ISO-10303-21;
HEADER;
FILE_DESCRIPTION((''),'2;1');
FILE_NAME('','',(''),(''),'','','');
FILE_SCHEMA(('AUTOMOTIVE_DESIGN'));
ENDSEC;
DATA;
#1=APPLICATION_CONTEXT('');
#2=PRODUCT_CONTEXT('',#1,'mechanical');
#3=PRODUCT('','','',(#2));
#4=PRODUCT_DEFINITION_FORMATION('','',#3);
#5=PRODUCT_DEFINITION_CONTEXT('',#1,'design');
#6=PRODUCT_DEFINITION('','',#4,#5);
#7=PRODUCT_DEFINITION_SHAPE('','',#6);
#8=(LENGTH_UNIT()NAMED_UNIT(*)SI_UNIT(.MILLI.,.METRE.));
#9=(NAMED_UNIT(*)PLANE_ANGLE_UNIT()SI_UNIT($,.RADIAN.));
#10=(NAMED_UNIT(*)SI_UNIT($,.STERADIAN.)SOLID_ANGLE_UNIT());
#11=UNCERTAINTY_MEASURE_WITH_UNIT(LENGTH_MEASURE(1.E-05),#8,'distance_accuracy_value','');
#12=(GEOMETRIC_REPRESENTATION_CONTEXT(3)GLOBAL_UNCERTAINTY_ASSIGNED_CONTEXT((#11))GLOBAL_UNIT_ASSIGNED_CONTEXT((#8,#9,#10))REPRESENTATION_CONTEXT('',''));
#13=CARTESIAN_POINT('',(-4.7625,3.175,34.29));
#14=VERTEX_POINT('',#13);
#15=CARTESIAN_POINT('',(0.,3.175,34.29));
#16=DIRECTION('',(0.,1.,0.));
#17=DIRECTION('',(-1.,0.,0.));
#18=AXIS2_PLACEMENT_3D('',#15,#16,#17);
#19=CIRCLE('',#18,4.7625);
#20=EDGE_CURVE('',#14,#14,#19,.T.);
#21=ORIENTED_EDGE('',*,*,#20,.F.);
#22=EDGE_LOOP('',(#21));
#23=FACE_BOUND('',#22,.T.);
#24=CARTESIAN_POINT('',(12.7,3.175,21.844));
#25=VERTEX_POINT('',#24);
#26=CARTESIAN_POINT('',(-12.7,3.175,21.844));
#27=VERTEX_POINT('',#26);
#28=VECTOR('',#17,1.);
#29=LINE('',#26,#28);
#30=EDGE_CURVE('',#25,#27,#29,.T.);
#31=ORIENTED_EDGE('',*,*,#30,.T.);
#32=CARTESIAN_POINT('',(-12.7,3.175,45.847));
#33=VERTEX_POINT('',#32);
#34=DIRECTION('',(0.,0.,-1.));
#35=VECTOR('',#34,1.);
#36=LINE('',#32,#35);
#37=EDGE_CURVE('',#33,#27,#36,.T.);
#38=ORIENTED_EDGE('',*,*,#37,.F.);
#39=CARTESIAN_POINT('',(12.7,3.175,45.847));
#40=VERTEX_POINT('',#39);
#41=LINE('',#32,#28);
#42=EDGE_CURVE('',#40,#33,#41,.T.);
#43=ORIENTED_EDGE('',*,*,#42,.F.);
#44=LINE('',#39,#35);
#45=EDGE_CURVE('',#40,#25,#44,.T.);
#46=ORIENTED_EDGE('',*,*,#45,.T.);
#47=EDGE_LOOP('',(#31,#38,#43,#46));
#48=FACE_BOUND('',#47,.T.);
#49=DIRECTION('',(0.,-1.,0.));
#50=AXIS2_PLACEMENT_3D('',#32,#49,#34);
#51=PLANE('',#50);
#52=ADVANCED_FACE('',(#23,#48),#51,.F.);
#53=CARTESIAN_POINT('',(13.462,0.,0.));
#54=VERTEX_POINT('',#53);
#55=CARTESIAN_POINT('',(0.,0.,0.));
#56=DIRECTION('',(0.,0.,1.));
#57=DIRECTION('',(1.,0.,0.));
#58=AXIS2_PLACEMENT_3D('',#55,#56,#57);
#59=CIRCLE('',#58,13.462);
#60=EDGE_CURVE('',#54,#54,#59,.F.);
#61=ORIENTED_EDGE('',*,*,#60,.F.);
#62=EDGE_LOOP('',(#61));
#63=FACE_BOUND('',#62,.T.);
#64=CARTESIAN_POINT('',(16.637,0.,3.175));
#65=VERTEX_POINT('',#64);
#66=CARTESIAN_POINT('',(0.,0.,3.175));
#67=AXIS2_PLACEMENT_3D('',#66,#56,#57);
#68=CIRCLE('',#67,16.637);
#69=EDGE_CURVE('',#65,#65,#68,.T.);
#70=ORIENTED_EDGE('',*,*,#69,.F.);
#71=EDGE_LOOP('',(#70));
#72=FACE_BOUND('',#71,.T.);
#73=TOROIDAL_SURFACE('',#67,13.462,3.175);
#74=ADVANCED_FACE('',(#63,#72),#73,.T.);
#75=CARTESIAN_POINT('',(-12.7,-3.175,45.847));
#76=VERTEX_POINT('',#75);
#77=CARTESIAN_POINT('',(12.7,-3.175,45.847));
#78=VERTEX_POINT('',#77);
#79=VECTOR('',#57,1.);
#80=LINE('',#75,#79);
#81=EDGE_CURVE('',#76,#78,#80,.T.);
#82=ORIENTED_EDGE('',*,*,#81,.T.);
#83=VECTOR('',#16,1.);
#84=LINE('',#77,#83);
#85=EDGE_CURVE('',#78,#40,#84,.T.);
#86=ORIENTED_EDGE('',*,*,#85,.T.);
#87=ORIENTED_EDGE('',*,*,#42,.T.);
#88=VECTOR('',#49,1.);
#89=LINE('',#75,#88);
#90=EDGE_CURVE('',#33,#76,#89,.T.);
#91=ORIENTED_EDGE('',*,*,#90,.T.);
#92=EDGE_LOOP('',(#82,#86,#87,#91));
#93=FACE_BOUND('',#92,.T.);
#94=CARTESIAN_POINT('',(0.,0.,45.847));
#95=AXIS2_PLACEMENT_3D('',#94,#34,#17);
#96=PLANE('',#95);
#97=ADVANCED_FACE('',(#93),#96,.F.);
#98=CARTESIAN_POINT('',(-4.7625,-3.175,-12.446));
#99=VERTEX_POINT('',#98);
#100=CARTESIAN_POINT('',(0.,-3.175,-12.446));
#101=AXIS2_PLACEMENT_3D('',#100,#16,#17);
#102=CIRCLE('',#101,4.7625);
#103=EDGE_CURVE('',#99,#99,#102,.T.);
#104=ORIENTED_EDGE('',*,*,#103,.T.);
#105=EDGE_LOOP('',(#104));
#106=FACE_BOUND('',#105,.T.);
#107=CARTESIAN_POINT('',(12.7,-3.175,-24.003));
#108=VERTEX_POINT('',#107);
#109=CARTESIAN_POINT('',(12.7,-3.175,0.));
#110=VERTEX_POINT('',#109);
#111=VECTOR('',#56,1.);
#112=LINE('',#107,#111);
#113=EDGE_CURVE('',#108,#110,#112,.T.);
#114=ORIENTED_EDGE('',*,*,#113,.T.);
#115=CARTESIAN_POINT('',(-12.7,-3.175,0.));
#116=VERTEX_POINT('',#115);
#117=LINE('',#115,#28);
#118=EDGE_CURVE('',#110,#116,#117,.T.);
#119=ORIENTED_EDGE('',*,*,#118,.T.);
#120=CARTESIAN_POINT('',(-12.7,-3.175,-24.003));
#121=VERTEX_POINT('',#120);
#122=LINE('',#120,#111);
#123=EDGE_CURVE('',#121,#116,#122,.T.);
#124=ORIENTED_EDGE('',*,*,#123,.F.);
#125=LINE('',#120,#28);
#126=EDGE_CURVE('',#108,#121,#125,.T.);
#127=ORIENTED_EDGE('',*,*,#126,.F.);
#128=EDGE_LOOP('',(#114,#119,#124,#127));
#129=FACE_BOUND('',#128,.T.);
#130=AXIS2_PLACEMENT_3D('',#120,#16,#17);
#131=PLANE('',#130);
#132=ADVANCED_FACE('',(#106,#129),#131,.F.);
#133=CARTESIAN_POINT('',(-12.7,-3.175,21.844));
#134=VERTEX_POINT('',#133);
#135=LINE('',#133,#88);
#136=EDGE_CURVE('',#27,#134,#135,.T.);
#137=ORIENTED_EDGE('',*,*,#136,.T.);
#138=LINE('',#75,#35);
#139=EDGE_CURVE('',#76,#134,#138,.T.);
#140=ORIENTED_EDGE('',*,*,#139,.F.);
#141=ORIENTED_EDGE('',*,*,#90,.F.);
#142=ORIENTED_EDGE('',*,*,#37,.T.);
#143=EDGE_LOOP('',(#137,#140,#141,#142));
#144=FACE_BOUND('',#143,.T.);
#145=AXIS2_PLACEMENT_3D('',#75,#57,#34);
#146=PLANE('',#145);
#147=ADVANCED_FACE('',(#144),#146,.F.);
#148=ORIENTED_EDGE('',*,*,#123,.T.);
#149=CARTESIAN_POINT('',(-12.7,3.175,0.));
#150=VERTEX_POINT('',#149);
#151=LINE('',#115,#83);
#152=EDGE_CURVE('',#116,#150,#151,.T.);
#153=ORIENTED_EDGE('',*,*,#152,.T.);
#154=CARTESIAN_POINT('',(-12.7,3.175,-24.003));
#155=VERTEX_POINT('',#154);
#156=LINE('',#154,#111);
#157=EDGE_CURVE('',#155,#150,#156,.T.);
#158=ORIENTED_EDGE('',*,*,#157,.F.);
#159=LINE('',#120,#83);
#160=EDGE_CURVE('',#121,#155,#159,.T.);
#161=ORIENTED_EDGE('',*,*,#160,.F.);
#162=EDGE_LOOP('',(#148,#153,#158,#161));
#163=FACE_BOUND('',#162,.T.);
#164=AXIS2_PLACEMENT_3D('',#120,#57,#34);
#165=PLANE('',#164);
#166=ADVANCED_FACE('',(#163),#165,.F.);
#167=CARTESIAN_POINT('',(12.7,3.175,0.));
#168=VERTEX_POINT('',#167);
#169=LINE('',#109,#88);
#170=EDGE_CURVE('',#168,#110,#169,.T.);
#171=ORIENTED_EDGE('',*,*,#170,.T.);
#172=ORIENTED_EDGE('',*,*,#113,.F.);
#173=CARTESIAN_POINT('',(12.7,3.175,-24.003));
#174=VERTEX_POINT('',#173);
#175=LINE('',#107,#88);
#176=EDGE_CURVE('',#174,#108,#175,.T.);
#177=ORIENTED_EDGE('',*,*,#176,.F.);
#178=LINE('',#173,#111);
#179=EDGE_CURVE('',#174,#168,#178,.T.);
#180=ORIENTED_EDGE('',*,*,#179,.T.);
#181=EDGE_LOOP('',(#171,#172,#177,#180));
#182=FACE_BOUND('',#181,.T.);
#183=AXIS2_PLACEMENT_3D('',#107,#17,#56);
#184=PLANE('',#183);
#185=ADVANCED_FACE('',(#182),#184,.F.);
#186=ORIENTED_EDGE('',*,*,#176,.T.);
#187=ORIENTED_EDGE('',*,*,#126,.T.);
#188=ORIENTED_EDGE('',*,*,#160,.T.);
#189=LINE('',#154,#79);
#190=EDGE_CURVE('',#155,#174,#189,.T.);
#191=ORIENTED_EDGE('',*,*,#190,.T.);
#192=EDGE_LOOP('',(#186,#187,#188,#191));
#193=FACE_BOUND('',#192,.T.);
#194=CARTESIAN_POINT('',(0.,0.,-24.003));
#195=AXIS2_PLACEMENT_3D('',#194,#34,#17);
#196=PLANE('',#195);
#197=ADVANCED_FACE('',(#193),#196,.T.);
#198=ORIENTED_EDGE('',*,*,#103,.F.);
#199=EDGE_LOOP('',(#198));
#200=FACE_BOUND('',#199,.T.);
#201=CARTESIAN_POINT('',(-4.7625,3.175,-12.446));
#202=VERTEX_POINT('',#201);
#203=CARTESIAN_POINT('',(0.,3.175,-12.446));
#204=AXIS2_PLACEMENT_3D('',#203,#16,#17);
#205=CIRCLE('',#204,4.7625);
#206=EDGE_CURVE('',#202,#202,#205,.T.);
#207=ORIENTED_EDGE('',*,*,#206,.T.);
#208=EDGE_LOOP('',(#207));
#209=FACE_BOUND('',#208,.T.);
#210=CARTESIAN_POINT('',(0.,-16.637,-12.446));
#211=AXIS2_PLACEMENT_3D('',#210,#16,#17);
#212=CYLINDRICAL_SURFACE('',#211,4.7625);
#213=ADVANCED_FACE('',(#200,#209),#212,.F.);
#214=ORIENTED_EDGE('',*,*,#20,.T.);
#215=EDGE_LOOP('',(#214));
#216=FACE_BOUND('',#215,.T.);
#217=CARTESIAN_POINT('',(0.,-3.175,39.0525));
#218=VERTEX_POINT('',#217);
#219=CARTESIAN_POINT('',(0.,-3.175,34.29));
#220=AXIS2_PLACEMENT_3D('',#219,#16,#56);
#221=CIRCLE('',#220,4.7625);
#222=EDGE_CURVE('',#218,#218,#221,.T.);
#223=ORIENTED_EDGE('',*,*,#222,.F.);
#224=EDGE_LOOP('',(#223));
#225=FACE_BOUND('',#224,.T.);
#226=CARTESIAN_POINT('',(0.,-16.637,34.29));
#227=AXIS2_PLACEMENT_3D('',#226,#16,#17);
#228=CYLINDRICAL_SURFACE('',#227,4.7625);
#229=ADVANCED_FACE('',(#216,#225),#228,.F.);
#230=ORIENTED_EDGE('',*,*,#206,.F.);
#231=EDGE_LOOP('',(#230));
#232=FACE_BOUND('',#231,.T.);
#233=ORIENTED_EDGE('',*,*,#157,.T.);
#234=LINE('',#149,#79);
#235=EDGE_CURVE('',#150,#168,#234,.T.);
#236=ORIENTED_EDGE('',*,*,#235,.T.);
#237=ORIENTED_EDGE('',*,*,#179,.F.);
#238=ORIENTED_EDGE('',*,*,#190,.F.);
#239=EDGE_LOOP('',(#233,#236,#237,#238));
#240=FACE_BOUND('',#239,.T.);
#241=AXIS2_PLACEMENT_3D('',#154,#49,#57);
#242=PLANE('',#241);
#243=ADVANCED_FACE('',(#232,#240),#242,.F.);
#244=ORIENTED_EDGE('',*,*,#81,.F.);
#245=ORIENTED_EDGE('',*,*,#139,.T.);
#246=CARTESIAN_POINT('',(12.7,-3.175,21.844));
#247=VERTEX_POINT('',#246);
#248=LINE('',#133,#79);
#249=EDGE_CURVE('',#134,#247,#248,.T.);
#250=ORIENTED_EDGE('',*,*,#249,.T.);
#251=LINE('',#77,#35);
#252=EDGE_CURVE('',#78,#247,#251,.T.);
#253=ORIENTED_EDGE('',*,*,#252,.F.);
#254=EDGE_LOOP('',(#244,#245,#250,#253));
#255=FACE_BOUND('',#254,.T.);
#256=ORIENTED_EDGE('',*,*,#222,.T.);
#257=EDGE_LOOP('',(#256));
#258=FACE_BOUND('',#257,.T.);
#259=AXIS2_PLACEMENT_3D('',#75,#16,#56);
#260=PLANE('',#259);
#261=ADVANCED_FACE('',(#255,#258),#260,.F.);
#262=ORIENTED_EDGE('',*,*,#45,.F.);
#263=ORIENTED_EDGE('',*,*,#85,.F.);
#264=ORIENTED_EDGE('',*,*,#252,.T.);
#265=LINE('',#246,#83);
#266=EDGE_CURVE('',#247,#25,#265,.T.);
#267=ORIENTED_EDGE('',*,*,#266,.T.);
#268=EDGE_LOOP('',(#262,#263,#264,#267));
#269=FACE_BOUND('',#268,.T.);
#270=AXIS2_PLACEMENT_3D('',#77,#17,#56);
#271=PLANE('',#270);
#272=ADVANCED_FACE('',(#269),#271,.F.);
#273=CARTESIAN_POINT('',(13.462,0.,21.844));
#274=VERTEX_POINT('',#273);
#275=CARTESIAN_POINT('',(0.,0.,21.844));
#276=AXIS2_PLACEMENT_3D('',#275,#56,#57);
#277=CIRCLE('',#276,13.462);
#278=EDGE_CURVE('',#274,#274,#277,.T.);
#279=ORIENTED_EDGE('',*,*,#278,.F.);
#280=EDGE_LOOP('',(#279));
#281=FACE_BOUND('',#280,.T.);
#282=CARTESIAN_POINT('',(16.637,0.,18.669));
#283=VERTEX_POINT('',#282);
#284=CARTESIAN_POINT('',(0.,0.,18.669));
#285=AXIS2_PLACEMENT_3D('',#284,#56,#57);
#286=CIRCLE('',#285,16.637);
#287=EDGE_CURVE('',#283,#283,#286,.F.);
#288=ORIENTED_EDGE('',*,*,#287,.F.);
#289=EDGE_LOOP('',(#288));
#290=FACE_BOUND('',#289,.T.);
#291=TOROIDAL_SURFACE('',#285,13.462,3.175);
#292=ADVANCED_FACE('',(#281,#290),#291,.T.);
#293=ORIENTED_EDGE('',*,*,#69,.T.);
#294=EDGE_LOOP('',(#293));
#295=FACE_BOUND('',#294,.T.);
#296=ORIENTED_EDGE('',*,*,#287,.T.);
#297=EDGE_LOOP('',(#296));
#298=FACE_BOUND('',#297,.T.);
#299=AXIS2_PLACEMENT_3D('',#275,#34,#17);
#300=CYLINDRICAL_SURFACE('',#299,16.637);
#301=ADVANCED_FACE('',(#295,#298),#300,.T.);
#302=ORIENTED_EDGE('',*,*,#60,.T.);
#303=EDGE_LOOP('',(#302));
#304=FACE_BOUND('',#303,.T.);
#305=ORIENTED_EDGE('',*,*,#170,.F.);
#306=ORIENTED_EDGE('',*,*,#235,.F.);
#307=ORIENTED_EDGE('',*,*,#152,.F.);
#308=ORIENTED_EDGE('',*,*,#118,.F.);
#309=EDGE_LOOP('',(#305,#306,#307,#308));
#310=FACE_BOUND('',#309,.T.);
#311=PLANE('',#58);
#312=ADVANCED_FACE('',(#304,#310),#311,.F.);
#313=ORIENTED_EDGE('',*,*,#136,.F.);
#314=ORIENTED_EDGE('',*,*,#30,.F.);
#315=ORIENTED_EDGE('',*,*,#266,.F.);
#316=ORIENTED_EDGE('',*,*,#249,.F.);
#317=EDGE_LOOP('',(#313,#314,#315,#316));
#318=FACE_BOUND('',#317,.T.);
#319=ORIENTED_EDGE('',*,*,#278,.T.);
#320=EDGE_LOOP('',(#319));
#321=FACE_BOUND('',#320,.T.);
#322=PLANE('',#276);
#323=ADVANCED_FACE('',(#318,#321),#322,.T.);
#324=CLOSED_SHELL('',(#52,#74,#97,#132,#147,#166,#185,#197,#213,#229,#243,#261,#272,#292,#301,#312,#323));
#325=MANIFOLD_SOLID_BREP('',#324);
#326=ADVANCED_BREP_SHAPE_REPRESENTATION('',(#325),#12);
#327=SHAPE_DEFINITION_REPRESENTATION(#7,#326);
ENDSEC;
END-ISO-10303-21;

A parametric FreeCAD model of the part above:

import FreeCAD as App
import Part
import Sketcher
from FreeCAD import Vector
Q = App.Units.Quantity


def edges_at(feature, points):
    """Names of the edges that pass closest to the given points."""
    edges = feature.Shape.Edges
    near = lambda p: min(range(len(edges)), key=lambda i: edges[i].distToShape(Part.Vertex(*p))[0])
    return sorted({f"Edge{near(p) + 1}" for p in points})

doc = App.newDocument("Part")
body = doc.addObject("PartDesign::Body", "Body")

# Sketch on XY plane
sketch1 = body.newObject("Sketcher::SketchObject", "Sketch")
sketch1.AttachmentSupport = (doc.getObject("XY_Plane"), [""])
sketch1.MapMode = "FlatFace"
sketch1.addGeometry(Part.Circle(Vector(0, 0, 0), Vector(0, 0, 1), 17), False)
sketch1.addConstraint(Sketcher.Constraint("Coincident", 0, 3, -1, 1))
sketch1.addConstraint(Sketcher.Constraint("Diameter", 0, Q("1.31 in")))
pad1 = body.newObject("PartDesign::Pad", "Pad")
pad1.Profile = sketch1
pad1.Length = Q("0.86 in")

# Sketch on XY plane
sketch2 = body.newObject("Sketcher::SketchObject", "Sketch001")
sketch2.AttachmentSupport = (doc.getObject("XY_Plane"), [""])
sketch2.MapMode = "FlatFace"
sketch2.AttachmentOffset = App.Placement(Vector(0, 0, 0.86 * 25.4), App.Rotation())
sketch2.addGeometry(Part.LineSegment(Vector(-13, 3, 0), Vector(-13, -3, 0)), False)
sketch2.addGeometry(Part.LineSegment(Vector(-13, -3, 0), Vector(13, -3, 0)), False)
sketch2.addGeometry(Part.LineSegment(Vector(13, -3, 0), Vector(13, 3, 0)), False)
sketch2.addGeometry(Part.LineSegment(Vector(13, 3, 0), Vector(-13, 3, 0)), False)
sketch2.addConstraint(Sketcher.Constraint("Coincident", 0, 2, 1, 1))
sketch2.addConstraint(Sketcher.Constraint("Coincident", 1, 2, 2, 1))
sketch2.addConstraint(Sketcher.Constraint("Coincident", 2, 2, 3, 1))
sketch2.addConstraint(Sketcher.Constraint("Coincident", 3, 2, 0, 1))
sketch2.addConstraint(Sketcher.Constraint("Vertical", 0))
sketch2.addConstraint(Sketcher.Constraint("Horizontal", 1))
sketch2.addConstraint(Sketcher.Constraint("Vertical", 2))
sketch2.addConstraint(Sketcher.Constraint("Horizontal", 3))
sketch2.addConstraint(Sketcher.Constraint("Symmetric", 0, 2, 2, 2, -1, 1))
sketch2.addConstraint(Sketcher.Constraint("DistanceX", 1, 1, 1, 2, Q("1 in")))
sketch2.addConstraint(Sketcher.Constraint("DistanceY", 0, 2, 0, 1, Q("0.25 in")))
pad2 = body.newObject("PartDesign::Pad", "Pad001")
pad2.Profile = sketch2
pad2.Length = Q("0.945 in")

# Sketch on XY plane
sketch3 = body.newObject("Sketcher::SketchObject", "Sketch002")
sketch3.AttachmentSupport = (doc.getObject("XY_Plane"), [""])
sketch3.MapMode = "FlatFace"
sketch3.addGeometry(Part.LineSegment(Vector(13, 3, 0), Vector(13, -3, 0)), False)
sketch3.addGeometry(Part.LineSegment(Vector(13, -3, 0), Vector(-13, -3, 0)), False)
sketch3.addGeometry(Part.LineSegment(Vector(-13, -3, 0), Vector(-13, 3, 0)), False)
sketch3.addGeometry(Part.LineSegment(Vector(-13, 3, 0), Vector(13, 3, 0)), False)
sketch3.addConstraint(Sketcher.Constraint("Coincident", 0, 2, 1, 1))
sketch3.addConstraint(Sketcher.Constraint("Coincident", 1, 2, 2, 1))
sketch3.addConstraint(Sketcher.Constraint("Coincident", 2, 2, 3, 1))
sketch3.addConstraint(Sketcher.Constraint("Coincident", 3, 2, 0, 1))
sketch3.addConstraint(Sketcher.Constraint("Vertical", 0))
sketch3.addConstraint(Sketcher.Constraint("Horizontal", 1))
sketch3.addConstraint(Sketcher.Constraint("Vertical", 2))
sketch3.addConstraint(Sketcher.Constraint("Horizontal", 3))
sketch3.addConstraint(Sketcher.Constraint("Symmetric", 0, 2, 2, 2, -1, 1))
sketch3.addConstraint(Sketcher.Constraint("DistanceX", 1, 2, 1, 1, Q("1 in")))
sketch3.addConstraint(Sketcher.Constraint("DistanceY", 0, 2, 0, 1, Q("0.25 in")))
pad3 = body.newObject("PartDesign::Pad", "Pad002")
pad3.Profile = sketch3
pad3.Length = Q("0.945 in")
pad3.Reversed = True

# Sketch on XZ plane
sketch4 = body.newObject("Sketcher::SketchObject", "Sketch003")
sketch4.AttachmentSupport = (doc.getObject("XZ_Plane"), [""])
sketch4.MapMode = "FlatFace"
sketch4.AttachmentOffset = App.Placement(Vector(0, 0, -0.125 * 25.4), App.Rotation())
sketch4.addGeometry(Part.Circle(Vector(0, -12.4, 0), Vector(0, 0, 1), 4.8), False)
sketch4.addGeometry(Part.Circle(Vector(0, 34.3, 0), Vector(0, 0, 1), 4.8), False)
sketch4.addConstraint(Sketcher.Constraint("Equal", 0, 1))
sketch4.addConstraint(Sketcher.Constraint("PointOnObject", 0, 3, -2))
sketch4.addConstraint(Sketcher.Constraint("PointOnObject", 1, 3, -2))
sketch4.addConstraint(Sketcher.Constraint("Diameter", 0, Q("0.375 in")))
sketch4.addConstraint(Sketcher.Constraint("DistanceY", 0, 3, -1, 1, Q("0.49 in")))
sketch4.addConstraint(Sketcher.Constraint("DistanceY", -1, 1, 1, 3, Q("1.35 in")))
pocket1 = body.newObject("PartDesign::Pocket", "Pocket")
pocket1.Profile = sketch4
pocket1.Type = "ThroughAll"
pocket1.Reversed = True
doc.recompute()

fillet = body.newObject("PartDesign::Fillet", "Fillet")
fillet.Base = (pocket1, edges_at(pocket1, [(-16.637, 0, 0), (-16.637, 0, 21.844)]))
fillet.Radius = Q("0.125 in")

doc.recompute()
